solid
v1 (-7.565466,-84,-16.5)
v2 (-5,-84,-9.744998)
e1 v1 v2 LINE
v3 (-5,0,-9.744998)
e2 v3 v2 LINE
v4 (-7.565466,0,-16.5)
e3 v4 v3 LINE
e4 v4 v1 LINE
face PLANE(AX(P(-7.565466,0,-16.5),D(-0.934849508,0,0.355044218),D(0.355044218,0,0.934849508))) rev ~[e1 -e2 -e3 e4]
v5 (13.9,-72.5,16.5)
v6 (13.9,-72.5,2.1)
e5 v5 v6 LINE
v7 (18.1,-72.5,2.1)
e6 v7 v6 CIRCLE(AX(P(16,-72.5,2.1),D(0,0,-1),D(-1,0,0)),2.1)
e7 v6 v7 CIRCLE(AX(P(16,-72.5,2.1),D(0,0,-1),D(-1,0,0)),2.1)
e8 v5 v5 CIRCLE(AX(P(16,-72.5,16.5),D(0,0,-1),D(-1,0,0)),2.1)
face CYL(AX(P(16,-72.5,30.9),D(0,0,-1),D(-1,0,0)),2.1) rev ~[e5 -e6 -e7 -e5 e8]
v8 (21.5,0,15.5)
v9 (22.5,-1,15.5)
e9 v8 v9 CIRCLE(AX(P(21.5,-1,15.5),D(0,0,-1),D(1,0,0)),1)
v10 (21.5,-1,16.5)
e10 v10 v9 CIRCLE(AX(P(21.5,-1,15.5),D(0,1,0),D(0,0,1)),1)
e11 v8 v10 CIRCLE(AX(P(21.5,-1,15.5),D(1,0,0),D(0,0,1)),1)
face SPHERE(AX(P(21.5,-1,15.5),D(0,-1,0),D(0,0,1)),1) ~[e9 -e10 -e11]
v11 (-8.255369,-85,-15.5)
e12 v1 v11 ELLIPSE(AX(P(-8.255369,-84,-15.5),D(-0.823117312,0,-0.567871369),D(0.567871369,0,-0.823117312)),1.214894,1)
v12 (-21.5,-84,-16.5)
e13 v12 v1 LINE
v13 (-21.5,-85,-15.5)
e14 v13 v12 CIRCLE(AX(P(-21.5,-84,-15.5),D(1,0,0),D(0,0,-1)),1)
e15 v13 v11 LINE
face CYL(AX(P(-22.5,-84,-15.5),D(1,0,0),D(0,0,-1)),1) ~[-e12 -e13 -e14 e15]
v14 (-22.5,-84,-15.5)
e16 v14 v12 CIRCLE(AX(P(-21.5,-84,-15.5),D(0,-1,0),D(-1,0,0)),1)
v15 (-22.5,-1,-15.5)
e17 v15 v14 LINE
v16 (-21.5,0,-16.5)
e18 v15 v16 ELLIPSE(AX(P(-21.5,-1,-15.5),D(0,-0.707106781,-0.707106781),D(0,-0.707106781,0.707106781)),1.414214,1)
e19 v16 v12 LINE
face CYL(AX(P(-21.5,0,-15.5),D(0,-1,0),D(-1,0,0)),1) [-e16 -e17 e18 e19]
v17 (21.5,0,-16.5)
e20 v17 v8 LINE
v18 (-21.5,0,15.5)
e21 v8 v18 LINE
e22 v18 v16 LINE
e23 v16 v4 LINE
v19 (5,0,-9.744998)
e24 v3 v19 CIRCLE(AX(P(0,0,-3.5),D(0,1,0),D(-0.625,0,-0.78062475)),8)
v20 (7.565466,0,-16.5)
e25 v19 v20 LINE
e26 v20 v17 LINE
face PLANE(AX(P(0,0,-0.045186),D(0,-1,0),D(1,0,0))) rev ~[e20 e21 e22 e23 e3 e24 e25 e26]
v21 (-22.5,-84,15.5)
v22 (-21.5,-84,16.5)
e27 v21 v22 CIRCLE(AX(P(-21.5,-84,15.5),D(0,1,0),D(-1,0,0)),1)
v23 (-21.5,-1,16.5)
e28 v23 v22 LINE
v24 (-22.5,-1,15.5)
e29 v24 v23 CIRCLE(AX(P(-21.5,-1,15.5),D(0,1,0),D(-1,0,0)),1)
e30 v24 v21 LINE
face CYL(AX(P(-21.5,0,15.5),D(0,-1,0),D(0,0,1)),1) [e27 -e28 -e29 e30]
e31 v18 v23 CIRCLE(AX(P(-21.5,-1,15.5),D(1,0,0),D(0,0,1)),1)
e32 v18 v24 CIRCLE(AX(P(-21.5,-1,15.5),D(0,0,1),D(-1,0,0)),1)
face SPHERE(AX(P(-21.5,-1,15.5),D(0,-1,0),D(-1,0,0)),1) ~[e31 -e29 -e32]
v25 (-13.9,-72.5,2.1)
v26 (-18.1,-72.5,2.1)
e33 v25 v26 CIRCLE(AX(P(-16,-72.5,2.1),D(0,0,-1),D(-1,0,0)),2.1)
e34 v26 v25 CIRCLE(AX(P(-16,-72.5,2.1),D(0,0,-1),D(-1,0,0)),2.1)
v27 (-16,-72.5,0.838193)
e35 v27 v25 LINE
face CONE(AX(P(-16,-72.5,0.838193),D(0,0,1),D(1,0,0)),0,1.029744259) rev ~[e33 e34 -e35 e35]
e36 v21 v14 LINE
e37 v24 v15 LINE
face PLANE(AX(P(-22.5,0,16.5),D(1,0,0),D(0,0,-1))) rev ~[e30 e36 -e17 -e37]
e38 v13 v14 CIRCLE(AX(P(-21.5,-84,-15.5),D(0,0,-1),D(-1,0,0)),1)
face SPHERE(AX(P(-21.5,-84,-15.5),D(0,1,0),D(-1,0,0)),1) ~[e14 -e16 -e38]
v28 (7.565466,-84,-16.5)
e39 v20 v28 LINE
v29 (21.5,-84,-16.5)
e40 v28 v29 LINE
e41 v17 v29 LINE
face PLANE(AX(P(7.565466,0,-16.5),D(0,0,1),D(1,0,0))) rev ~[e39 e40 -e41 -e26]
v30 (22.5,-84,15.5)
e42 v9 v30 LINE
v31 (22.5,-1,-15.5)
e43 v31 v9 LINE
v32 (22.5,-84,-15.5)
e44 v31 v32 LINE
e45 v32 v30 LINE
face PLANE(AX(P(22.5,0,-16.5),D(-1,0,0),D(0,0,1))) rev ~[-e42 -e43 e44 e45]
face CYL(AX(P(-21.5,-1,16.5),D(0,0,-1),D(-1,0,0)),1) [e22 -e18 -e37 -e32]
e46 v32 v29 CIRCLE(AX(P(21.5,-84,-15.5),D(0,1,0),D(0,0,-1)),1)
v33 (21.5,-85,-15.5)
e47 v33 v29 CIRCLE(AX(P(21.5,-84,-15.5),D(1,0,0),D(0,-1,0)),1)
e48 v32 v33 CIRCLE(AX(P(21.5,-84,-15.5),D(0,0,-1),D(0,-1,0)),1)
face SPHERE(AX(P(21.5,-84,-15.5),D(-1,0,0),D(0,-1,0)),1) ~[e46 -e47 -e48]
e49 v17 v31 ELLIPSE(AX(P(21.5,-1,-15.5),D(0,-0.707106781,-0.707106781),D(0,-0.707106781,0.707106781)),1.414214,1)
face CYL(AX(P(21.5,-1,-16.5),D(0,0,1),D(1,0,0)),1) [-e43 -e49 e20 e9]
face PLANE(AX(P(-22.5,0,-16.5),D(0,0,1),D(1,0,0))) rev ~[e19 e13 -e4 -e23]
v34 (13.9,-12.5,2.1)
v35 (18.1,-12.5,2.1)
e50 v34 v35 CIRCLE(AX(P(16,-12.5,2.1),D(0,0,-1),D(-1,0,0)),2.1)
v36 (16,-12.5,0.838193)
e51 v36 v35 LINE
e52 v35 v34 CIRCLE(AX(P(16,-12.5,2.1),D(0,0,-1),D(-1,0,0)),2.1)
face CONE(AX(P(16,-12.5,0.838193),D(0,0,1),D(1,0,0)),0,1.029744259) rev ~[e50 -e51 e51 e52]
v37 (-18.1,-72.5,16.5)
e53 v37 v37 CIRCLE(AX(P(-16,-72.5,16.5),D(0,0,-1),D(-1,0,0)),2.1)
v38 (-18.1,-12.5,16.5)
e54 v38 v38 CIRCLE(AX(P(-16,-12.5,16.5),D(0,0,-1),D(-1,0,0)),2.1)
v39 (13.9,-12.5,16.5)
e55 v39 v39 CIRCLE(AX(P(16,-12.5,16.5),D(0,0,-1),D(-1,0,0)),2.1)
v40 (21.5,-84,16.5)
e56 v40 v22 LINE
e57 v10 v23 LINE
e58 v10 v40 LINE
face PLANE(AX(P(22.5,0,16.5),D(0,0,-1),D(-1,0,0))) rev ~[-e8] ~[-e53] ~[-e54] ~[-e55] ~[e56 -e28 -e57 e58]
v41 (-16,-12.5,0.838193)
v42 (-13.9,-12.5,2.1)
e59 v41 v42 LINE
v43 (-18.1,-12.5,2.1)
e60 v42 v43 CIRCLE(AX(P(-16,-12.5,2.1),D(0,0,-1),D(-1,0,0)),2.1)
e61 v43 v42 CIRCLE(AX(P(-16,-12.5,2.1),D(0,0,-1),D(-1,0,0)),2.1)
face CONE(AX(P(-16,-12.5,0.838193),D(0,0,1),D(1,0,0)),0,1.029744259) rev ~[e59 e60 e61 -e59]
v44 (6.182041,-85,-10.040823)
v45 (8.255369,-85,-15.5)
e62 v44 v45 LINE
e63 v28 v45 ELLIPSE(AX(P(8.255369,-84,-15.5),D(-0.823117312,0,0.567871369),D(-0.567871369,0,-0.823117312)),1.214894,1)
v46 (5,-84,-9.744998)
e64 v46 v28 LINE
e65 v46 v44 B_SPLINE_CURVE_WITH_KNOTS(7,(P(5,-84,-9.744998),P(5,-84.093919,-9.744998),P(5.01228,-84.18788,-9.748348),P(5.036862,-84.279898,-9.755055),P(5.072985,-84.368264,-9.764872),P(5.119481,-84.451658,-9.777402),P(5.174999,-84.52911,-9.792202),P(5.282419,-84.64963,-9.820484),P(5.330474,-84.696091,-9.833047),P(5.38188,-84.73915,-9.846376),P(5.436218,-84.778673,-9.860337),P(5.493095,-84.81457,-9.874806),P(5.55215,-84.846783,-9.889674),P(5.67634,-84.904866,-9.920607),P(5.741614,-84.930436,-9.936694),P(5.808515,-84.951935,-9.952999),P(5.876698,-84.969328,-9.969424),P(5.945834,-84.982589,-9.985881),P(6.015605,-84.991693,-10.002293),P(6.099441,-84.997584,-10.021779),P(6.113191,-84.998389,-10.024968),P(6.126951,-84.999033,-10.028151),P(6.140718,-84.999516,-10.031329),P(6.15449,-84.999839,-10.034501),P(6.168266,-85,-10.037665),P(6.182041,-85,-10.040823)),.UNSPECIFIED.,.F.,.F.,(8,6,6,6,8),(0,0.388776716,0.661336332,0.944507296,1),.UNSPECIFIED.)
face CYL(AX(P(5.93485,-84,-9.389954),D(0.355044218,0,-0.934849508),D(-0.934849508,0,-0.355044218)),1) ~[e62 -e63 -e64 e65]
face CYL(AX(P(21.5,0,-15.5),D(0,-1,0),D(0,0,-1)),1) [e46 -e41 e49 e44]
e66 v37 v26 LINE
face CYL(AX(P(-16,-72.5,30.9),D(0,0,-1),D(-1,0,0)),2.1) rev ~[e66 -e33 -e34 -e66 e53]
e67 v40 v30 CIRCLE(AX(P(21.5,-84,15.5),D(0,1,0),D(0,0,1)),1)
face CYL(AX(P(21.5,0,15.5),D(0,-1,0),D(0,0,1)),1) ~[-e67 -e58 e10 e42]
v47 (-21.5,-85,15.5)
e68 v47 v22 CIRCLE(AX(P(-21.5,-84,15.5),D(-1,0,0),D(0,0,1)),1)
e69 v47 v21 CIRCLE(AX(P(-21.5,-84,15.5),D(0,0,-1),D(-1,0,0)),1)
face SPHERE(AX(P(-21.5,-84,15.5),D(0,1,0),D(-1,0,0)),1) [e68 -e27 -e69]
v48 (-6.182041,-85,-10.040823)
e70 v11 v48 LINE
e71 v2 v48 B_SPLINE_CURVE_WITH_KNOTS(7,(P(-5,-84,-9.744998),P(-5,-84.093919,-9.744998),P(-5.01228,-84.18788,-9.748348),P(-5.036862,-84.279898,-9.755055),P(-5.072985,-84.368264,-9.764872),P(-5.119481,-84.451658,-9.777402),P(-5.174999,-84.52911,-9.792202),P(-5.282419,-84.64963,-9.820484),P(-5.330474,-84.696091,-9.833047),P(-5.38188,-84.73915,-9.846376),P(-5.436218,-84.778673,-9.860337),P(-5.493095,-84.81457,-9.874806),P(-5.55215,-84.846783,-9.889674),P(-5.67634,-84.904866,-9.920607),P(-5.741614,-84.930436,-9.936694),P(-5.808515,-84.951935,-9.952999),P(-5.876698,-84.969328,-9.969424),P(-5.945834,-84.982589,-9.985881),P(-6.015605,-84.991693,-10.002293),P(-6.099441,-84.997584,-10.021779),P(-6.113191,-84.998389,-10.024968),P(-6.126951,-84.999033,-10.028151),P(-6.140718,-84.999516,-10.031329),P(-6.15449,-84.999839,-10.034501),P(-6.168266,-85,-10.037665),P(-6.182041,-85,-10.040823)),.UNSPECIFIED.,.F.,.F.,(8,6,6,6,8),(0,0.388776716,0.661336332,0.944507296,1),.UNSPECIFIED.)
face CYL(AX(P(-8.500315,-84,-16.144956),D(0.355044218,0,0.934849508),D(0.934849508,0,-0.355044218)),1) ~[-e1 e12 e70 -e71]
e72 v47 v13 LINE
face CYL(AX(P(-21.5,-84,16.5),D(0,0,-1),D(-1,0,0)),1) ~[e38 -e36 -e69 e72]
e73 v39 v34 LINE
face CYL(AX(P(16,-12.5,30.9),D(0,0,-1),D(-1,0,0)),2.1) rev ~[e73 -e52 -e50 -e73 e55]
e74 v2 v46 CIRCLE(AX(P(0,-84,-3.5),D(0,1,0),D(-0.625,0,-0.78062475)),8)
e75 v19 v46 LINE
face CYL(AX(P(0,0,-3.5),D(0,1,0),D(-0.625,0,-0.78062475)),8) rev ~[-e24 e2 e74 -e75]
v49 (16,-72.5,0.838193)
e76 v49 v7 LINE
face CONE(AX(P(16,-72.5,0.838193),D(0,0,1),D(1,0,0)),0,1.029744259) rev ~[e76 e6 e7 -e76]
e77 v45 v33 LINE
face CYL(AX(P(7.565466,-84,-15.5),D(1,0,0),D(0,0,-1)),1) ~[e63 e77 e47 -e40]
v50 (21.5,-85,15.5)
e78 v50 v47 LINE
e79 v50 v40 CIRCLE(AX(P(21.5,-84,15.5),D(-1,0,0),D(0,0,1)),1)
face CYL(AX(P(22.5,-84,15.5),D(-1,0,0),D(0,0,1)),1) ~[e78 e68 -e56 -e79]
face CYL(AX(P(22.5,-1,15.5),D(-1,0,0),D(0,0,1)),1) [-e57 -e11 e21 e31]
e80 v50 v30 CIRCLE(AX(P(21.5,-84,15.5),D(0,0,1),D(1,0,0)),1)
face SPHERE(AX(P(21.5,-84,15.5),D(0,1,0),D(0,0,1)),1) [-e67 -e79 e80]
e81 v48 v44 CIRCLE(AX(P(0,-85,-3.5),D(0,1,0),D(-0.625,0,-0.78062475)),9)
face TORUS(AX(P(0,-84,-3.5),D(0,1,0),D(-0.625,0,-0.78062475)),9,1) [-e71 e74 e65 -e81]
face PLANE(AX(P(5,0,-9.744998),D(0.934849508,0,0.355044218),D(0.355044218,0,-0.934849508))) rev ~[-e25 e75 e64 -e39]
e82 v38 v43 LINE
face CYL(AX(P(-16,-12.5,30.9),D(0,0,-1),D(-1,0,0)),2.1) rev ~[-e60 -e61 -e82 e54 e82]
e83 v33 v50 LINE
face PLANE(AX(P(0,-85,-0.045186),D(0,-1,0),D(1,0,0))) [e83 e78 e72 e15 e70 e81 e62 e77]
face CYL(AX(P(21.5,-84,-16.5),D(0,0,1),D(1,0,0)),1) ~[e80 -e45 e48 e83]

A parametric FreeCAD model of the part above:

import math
import FreeCAD as App
import Part
import Sketcher

V = App.Vector


def edges_at(feature, points):
    """Names of the edges that pass closest to the given points."""
    edges = feature.Shape.Edges
    near = lambda p: min(range(len(edges)), key=lambda i: edges[i].distToShape(Part.Vertex(*p))[0])
    return sorted({f"Edge{near(p) + 1}" for p in points})

doc = App.newDocument("Part")
body = doc.addObject("PartDesign::Body", "Body")

sketch1 = body.newObject("Sketcher::SketchObject", "Sketch")
sketch1.AttachmentSupport = (doc.getObject("XZ_Plane"), [""])
sketch1.MapMode = "FlatFace"
sketch1.addGeometry(Part.LineSegment(V(22.5, 16.5, 0), V(-22.5, 16.5, 0)), False)
sketch1.addGeometry(Part.LineSegment(V(-22.5, 16.5, 0), V(-22.5, -16.5, 0)), False)
sketch1.addGeometry(Part.LineSegment(V(-22.5, -16.5, 0), V(-7.565466, -16.5, 0)), False)
sketch1.addGeometry(Part.LineSegment(V(-7.565466, -16.5, 0), V(-5, -9.744998, 0)), False)
sketch1.addGeometry(Part.ArcOfCircle(Part.Circle(V(0, -3.5, 0), V(0, 0, 1), 8), math.radians(-51.317813), math.radians(231.317813)), False)
sketch1.addGeometry(Part.LineSegment(V(5, -9.744998, 0), V(7.565466, -16.5, 0)), False)
sketch1.addGeometry(Part.LineSegment(V(7.565466, -16.5, 0), V(22.5, -16.5, 0)), False)
sketch1.addGeometry(Part.LineSegment(V(22.5, -16.5, 0), V(22.5, 16.5, 0)), False)
sketch1.addConstraint(Sketcher.Constraint("Coincident", 0, 2, 1, 1))
sketch1.addConstraint(Sketcher.Constraint("Coincident", 1, 2, 2, 1))
sketch1.addConstraint(Sketcher.Constraint("Coincident", 2, 2, 3, 1))
sketch1.addConstraint(Sketcher.Constraint("Coincident", 3, 2, 4, 2))
sketch1.addConstraint(Sketcher.Constraint("Coincident", 4, 1, 5, 1))
sketch1.addConstraint(Sketcher.Constraint("Coincident", 5, 2, 6, 1))
sketch1.addConstraint(Sketcher.Constraint("Coincident", 6, 2, 7, 1))
sketch1.addConstraint(Sketcher.Constraint("Coincident", 7, 2, 0, 1))
sketch1.addConstraint(Sketcher.Constraint("Horizontal", 0))
sketch1.addConstraint(Sketcher.Constraint("Vertical", 1))
sketch1.addConstraint(Sketcher.Constraint("Horizontal", 2))
sketch1.addConstraint(Sketcher.Constraint("Horizontal", 6))
sketch1.addConstraint(Sketcher.Constraint("Vertical", 7))
sketch1.addConstraint(Sketcher.Constraint("Symmetric", 0, 2, 6, 2, -1, 1))
sketch1.addConstraint(Sketcher.Constraint("Symmetric", 3, 2, 4, 1, -2))
sketch1.addConstraint(Sketcher.Constraint("Symmetric", 2, 2, 5, 2, -2))
sketch1.addConstraint(Sketcher.Constraint("Radius", 4, 8.0))
sketch1.addConstraint(Sketcher.Constraint("DistanceX", 0, 2, 0, 1, 45.0))
sketch1.addConstraint(Sketcher.Constraint("DistanceY", 1, 2, 1, 1, 33.0))
sketch1.addConstraint(Sketcher.Constraint("DistanceX", 3, 2, -1, 1, 5.0))
sketch1.addConstraint(Sketcher.Constraint("DistanceY", 4, 3, 0, 2, 20.0))
sketch1.addConstraint(Sketcher.Constraint("DistanceX", 2, 1, 2, 2, 14.934534))
pad1 = body.newObject("PartDesign::Pad", "Pad")
pad1.Profile = sketch1
pad1.Length = 85
doc.recompute()

fillet = body.newObject("PartDesign::Fillet", "Fillet")
fillet.Base = (pad1, edges_at(pad1, [
    (-22.5, -42.5, 16.5),
    (-22.5, -42.5, -16.5),
    (-22.5, 0, 0),
    (-22.5, -85, 0),
    (22.5, -42.5, 16.5),
    (0, 0, 16.5),
    (0, -85, 16.5),
    (-15.033, -85, -16.5),
    (-6.283, -85, -13.122),
    (0, -85, 4.5),
    (6.283, -85, -13.122),
    (15.033, -85, -16.5),
    (22.5, -85, 0),
    (22.5, -42.5, -16.5),
    (22.5, 0, 0),
]))
fillet.Radius = 1

sketch2 = body.newObject("Sketcher::SketchObject", "Sketch001")
sketch2.AttachmentSupport = (doc.getObject("XY_Plane"), [""])
sketch2.MapMode = "FlatFace"
sketch2.AttachmentOffset = App.Placement(V(0, 0, 16.5), App.Rotation())
sketch2.addGeometry(Part.Circle(V(-16, -12.5, 0), V(0, 0, 1), 2.1), False)
sketch2.addGeometry(Part.Circle(V(16, -12.5, 0), V(0, 0, 1), 2.1), False)
sketch2.addGeometry(Part.Circle(V(-16, -72.5, 0), V(0, 0, 1), 2.1), False)
sketch2.addGeometry(Part.Circle(V(16, -72.5, 0), V(0, 0, 1), 2.1), False)
sketch2.addConstraint(Sketcher.Constraint("Equal", 0, 1))
sketch2.addConstraint(Sketcher.Constraint("Equal", 1, 2))
sketch2.addConstraint(Sketcher.Constraint("Equal", 2, 3))
sketch2.addConstraint(Sketcher.Constraint("Symmetric", 0, 3, 1, 3, -2))
sketch2.addConstraint(Sketcher.Constraint("Symmetric", 2, 3, 3, 3, -2))
sketch2.addConstraint(Sketcher.Constraint("Vertical", 0, 3, 2, 3))
sketch2.addConstraint(Sketcher.Constraint("Diameter", 0, 4.2))
sketch2.addConstraint(Sketcher.Constraint("DistanceX", 0, 3, -1, 1, 16.0))
sketch2.addConstraint(Sketcher.Constraint("DistanceY", 2, 3, 0, 3, 60.0))
sketch2.addConstraint(Sketcher.Constraint("DistanceY", 0, 3, -1, 1, 12.5))
doc.recompute()
hole = body.newObject("PartDesign::Hole", "Hole")
hole.Profile = sketch2
hole.ThreadType = "None"
hole.Diameter = 4.2
hole.DepthType = "Dimension"
hole.Depth = 14.4
hole.DrillPoint = "Angled"
hole.DrillPointAngle = 118

doc.recompute()
